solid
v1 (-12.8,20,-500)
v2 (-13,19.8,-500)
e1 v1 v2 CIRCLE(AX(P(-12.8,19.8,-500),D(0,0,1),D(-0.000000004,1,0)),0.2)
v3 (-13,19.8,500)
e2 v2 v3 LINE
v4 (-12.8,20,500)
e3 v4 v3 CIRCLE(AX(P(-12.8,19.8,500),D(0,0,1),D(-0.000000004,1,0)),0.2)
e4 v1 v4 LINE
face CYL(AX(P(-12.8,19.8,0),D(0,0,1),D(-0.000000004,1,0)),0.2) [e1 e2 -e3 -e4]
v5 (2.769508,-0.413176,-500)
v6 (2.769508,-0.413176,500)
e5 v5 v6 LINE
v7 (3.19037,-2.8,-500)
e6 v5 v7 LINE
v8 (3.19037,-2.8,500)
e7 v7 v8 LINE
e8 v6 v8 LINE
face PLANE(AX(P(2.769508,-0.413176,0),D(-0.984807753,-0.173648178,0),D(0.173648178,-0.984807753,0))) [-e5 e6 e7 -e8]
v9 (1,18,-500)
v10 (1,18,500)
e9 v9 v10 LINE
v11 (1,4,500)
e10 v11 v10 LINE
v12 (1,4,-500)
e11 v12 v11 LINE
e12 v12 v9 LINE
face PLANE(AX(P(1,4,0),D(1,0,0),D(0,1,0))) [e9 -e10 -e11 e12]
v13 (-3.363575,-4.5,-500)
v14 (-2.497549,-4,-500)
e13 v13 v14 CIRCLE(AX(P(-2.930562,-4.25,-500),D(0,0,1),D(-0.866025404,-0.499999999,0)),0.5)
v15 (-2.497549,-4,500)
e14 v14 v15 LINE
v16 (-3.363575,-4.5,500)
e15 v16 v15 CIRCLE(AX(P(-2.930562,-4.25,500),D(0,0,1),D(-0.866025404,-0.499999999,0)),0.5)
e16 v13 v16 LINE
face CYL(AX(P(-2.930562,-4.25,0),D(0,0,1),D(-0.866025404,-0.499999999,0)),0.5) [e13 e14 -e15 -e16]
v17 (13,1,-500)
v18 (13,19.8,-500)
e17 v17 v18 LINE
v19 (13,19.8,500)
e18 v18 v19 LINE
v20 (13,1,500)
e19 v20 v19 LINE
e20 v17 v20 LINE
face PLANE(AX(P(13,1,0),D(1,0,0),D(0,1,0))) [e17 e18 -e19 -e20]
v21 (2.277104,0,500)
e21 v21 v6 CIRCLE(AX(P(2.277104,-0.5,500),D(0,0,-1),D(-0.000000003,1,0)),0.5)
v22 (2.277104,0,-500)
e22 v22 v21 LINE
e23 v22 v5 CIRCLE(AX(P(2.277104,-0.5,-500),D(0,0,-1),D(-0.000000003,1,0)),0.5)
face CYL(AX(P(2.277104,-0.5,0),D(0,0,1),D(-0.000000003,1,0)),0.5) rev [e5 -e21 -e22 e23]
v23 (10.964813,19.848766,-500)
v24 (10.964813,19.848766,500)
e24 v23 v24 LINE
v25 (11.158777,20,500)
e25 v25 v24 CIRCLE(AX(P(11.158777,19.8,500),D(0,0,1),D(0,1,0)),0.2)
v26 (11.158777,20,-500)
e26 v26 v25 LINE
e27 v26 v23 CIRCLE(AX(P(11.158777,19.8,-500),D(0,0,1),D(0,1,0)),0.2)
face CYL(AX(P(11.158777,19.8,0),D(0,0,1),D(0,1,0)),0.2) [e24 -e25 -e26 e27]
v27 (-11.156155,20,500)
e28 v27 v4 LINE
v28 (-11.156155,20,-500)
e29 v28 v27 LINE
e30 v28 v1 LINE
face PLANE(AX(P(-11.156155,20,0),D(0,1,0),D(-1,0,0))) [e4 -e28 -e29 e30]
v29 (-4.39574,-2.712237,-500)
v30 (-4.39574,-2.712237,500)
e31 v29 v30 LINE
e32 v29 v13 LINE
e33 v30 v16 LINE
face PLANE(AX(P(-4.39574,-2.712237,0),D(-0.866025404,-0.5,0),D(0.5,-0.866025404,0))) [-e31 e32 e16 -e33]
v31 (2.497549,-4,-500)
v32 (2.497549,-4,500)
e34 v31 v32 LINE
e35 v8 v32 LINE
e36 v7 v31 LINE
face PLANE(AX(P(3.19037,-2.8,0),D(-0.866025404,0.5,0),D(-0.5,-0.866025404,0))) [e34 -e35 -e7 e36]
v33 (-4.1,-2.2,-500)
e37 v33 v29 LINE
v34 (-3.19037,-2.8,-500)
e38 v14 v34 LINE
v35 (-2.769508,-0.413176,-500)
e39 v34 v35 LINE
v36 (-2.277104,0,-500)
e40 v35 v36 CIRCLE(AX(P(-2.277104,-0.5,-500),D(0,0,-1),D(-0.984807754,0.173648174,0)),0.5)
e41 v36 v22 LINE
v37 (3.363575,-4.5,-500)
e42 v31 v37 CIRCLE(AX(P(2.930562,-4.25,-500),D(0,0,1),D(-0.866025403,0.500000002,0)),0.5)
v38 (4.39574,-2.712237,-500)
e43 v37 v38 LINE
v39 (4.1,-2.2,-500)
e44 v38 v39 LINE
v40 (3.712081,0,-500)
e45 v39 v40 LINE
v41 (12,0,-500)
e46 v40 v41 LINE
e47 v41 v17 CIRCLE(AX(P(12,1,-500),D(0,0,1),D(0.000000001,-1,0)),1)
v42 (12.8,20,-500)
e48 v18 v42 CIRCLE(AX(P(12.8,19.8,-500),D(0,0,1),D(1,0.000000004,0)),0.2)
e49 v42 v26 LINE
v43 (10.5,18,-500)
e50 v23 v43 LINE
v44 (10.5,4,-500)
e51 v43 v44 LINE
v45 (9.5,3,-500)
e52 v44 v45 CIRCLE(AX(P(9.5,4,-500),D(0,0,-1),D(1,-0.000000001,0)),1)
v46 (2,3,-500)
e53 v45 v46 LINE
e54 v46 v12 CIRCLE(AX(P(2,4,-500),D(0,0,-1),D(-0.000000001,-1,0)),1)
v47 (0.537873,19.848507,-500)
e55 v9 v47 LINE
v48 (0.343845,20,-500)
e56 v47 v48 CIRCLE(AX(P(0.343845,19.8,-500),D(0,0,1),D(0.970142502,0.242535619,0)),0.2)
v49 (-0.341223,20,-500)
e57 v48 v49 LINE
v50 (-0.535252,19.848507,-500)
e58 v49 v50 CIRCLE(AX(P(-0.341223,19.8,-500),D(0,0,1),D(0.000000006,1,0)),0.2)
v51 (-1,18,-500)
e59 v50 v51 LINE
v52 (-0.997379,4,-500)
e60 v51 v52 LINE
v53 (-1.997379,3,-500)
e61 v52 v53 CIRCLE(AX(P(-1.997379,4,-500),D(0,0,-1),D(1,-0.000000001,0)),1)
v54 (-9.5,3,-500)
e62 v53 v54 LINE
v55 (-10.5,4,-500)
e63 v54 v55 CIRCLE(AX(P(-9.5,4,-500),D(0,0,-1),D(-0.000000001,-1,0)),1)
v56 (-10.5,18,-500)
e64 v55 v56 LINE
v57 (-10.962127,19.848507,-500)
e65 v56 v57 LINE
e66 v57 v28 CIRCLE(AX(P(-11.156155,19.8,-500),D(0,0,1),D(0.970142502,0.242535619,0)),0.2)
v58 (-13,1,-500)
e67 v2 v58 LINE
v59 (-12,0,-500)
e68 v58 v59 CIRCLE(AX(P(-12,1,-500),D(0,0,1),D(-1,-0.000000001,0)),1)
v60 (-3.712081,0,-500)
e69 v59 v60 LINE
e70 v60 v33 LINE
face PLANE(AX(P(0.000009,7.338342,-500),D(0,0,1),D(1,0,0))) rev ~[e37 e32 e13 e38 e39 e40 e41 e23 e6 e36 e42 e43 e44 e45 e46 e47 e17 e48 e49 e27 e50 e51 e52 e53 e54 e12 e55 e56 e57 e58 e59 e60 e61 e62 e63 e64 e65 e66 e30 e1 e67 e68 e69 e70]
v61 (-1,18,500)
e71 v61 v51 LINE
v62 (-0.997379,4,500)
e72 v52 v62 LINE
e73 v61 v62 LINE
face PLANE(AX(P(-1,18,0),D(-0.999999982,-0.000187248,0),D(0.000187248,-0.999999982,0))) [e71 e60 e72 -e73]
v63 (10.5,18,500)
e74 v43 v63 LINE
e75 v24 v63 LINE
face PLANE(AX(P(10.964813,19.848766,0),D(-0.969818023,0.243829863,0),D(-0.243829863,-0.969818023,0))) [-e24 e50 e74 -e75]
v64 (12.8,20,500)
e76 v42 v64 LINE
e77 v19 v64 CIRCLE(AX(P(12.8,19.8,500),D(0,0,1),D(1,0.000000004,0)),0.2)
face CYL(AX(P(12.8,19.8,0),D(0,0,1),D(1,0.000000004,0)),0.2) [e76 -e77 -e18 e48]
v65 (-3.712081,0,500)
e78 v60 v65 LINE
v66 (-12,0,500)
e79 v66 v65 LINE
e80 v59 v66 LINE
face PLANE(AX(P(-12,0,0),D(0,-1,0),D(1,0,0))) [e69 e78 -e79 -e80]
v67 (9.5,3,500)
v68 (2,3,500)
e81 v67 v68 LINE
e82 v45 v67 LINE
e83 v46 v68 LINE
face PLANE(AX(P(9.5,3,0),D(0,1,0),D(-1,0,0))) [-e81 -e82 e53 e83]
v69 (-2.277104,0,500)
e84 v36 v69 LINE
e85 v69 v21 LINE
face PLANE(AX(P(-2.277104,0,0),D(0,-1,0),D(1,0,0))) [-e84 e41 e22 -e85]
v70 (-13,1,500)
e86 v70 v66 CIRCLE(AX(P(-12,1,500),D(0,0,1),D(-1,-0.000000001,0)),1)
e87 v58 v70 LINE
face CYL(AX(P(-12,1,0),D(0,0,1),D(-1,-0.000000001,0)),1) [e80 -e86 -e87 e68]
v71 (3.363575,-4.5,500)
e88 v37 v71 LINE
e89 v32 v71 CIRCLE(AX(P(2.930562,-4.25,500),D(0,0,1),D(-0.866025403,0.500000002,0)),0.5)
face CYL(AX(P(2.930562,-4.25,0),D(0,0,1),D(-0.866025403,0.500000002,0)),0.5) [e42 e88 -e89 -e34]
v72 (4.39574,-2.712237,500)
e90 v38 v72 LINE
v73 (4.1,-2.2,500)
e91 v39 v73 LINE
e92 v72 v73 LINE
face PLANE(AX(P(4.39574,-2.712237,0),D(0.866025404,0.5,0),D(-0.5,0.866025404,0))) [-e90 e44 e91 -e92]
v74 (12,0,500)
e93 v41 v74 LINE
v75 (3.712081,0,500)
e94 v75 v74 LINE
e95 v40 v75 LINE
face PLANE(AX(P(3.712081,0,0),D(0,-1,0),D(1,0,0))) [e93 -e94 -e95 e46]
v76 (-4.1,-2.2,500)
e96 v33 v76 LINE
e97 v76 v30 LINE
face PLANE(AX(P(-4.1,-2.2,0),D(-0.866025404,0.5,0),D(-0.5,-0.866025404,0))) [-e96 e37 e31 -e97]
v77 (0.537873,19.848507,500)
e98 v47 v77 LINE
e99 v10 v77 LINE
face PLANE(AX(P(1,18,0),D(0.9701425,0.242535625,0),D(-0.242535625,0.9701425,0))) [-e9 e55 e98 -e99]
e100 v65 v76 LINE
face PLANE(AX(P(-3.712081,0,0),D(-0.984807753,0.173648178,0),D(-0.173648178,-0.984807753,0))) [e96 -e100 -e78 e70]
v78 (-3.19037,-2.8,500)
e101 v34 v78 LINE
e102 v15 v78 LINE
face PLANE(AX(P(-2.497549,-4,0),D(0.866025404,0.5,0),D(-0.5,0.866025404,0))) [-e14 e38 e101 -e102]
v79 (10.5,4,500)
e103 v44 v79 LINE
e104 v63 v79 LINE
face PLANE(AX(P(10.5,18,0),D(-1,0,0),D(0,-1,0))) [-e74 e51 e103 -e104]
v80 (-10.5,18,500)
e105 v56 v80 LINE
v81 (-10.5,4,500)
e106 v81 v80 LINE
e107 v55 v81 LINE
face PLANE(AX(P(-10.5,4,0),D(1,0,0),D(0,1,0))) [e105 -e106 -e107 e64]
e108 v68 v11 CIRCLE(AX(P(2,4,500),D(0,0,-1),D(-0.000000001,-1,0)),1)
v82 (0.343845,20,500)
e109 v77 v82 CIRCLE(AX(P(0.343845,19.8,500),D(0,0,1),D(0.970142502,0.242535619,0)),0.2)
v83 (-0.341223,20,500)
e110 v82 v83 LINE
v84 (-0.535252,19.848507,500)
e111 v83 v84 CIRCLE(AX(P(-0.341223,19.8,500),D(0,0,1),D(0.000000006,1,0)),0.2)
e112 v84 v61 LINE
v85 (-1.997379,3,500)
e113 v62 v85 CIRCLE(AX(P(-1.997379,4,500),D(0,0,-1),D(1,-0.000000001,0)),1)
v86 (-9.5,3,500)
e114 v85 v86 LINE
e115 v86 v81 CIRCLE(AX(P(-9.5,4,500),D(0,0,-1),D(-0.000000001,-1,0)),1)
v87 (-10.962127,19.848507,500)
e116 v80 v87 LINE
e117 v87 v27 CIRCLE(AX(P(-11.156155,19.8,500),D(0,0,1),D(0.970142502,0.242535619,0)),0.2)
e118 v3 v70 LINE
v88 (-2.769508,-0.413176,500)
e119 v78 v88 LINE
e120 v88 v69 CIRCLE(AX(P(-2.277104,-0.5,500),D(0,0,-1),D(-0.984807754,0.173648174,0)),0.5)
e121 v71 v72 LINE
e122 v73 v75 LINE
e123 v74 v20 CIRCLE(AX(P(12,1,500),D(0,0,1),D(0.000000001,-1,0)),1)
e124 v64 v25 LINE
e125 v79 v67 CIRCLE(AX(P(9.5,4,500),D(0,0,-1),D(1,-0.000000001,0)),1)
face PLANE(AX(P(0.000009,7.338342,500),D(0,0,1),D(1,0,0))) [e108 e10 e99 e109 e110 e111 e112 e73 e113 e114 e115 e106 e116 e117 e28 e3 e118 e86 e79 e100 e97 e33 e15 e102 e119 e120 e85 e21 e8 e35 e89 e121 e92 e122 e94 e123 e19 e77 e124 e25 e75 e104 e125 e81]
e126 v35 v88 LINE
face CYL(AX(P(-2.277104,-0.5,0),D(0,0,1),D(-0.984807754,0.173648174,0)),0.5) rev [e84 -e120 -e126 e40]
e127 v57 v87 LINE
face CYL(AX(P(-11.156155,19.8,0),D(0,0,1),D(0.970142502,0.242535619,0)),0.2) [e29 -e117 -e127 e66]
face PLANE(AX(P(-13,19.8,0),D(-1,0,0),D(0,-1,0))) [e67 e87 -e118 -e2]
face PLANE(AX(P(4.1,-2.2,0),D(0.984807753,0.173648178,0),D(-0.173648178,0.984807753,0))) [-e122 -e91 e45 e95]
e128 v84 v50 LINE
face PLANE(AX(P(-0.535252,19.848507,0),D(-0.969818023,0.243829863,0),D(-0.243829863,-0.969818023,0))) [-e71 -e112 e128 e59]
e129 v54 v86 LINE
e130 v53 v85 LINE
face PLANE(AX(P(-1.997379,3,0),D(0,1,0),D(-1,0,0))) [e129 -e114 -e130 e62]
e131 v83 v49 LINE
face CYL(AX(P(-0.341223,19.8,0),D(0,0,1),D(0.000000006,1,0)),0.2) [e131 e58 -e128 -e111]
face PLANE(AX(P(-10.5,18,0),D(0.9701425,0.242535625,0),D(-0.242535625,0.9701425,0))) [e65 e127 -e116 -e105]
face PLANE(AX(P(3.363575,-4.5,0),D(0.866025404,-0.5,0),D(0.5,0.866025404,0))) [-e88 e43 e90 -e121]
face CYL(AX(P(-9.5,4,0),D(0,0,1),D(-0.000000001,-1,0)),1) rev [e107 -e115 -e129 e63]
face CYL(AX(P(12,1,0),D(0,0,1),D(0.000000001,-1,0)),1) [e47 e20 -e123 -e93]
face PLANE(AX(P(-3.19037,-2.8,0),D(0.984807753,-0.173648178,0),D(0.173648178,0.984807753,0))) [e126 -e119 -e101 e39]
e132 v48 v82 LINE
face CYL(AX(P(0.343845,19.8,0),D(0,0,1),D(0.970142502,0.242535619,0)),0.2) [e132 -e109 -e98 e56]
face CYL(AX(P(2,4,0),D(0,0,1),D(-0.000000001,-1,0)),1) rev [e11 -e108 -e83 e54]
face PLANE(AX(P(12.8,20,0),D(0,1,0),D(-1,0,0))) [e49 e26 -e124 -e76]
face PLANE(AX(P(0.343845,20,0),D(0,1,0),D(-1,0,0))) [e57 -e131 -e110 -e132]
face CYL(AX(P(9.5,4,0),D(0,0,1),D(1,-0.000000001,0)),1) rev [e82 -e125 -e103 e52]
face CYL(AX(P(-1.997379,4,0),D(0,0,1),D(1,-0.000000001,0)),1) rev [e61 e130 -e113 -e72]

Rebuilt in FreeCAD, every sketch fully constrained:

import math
import FreeCAD as App
import Part
import Sketcher
Q = App.Units.Quantity

doc = App.newDocument("Part")
params = doc.addObject("Spreadsheet::Sheet", "Params")
for row, (alias, value) in enumerate([
    ("sketch1_radius", "1 mm"),
    ("sketch1_radius2", "0.2 mm"),
    ("sketch1_radius3", "0.5 mm"),
    ("sketch1_height", "14 mm"),
    ("sketch1_width", "7.5 mm"),
    ("pad1_length", "1000 mm"),
], start=1):
    params.set(f"A{row}", alias)
    params.set(f"B{row}", "=" + value)
    params.setAlias(f"B{row}", alias)

body = doc.addObject("PartDesign::Body", "Body")

# Sketch on XY plane
sketch1 = body.newObject("Sketcher::SketchObject", "Sketch")
sketch1.AttachmentSupport = (doc.getObject("XY_Plane"), [""])
sketch1.MapMode = "FlatFace"
sketch1.addGeometry([
    Part.LineSegment(App.Vector(-1, 18, 0), App.Vector(-1, 4, 0)),  # 0
    Part.ArcOfCircle(Part.Circle(App.Vector(-2, 4, 0), App.Vector(0, 0, 1), 1), math.radians(-90), math.radians(0)),  # 1
    Part.LineSegment(App.Vector(-2, 3, 0), App.Vector(-9.5, 3, 0)),  # 2
    Part.ArcOfCircle(Part.Circle(App.Vector(-9.5, 4, 0), App.Vector(0, 0, 1), 1), math.radians(-180), math.radians(-90)),  # 3
    Part.LineSegment(App.Vector(-10.5, 4, 0), App.Vector(-10.5, 18, 0)),  # 4
    Part.LineSegment(App.Vector(-10.5, 18, 0), App.Vector(-10.96, 19.85, 0)),  # 5
    Part.ArcOfCircle(Part.Circle(App.Vector(-11.16, 19.8, 0), App.Vector(0, 0, 1), 0.2), math.radians(14), math.radians(90)),  # 6
    Part.LineSegment(App.Vector(-11.16, 20, 0), App.Vector(-12.8, 20, 0)),  # 7
    Part.ArcOfCircle(Part.Circle(App.Vector(-12.8, 19.8, 0), App.Vector(0, 0, 1), 0.2), math.radians(90), math.radians(180)),  # 8
    Part.LineSegment(App.Vector(-13, 19.8, 0), App.Vector(-13, 1, 0)),  # 9
    Part.ArcOfCircle(Part.Circle(App.Vector(-12, 1, 0), App.Vector(0, 0, 1), 1), math.radians(-180), math.radians(-90)),  # 10
    Part.LineSegment(App.Vector(-12, 0, 0), App.Vector(-3.71, 0, 0)),  # 11
    Part.LineSegment(App.Vector(-3.71, 0, 0), App.Vector(-4.1, -2.2, 0)),  # 12
    Part.LineSegment(App.Vector(-4.1, -2.2, 0), App.Vector(-4.4, -2.71, 0)),  # 13
    Part.LineSegment(App.Vector(-4.4, -2.71, 0), App.Vector(-3.36, -4.5, 0)),  # 14
    Part.ArcOfCircle(Part.Circle(App.Vector(-2.93, -4.25, 0), App.Vector(0, 0, 1), 0.5), math.radians(-150), math.radians(30)),  # 15
    Part.LineSegment(App.Vector(-2.5, -4, 0), App.Vector(-3.19, -2.8, 0)),  # 16
    Part.LineSegment(App.Vector(-3.19, -2.8, 0), App.Vector(-2.77, -0.41, 0)),  # 17
    Part.ArcOfCircle(Part.Circle(App.Vector(-2.28, -0.5, 0), App.Vector(0, 0, 1), 0.5), math.radians(90), math.radians(170)),  # 18
    Part.LineSegment(App.Vector(-2.28, 0, 0), App.Vector(2.28, 0, 0)),  # 19
    Part.ArcOfCircle(Part.Circle(App.Vector(2.28, -0.5, 0), App.Vector(0, 0, 1), 0.5), math.radians(10), math.radians(90)),  # 20
    Part.LineSegment(App.Vector(2.77, -0.41, 0), App.Vector(3.19, -2.8, 0)),  # 21
    Part.LineSegment(App.Vector(3.19, -2.8, 0), App.Vector(2.5, -4, 0)),  # 22
    Part.ArcOfCircle(Part.Circle(App.Vector(2.93, -4.25, 0), App.Vector(0, 0, 1), 0.5), math.radians(150), math.radians(330)),  # 23
    Part.LineSegment(App.Vector(3.36, -4.5, 0), App.Vector(4.4, -2.71, 0)),  # 24
    Part.LineSegment(App.Vector(4.4, -2.71, 0), App.Vector(4.1, -2.2, 0)),  # 25
    Part.LineSegment(App.Vector(4.1, -2.2, 0), App.Vector(3.71, 0, 0)),  # 26
    Part.LineSegment(App.Vector(3.71, 0, 0), App.Vector(12, 0, 0)),  # 27
    Part.ArcOfCircle(Part.Circle(App.Vector(12, 1, 0), App.Vector(0, 0, 1), 1), math.radians(-90), math.radians(0)),  # 28
    Part.LineSegment(App.Vector(13, 1, 0), App.Vector(13, 19.8, 0)),  # 29
    Part.ArcOfCircle(Part.Circle(App.Vector(12.8, 19.8, 0), App.Vector(0, 0, 1), 0.2), math.radians(0), math.radians(90)),  # 30
    Part.LineSegment(App.Vector(12.8, 20, 0), App.Vector(11.16, 20, 0)),  # 31
    Part.ArcOfCircle(Part.Circle(App.Vector(11.16, 19.8, 0), App.Vector(0, 0, 1), 0.2), math.radians(90), math.radians(166)),  # 32
    Part.LineSegment(App.Vector(10.96, 19.85, 0), App.Vector(10.5, 18, 0)),  # 33
    Part.LineSegment(App.Vector(10.5, 18, 0), App.Vector(10.5, 4, 0)),  # 34
    Part.ArcOfCircle(Part.Circle(App.Vector(9.5, 4, 0), App.Vector(0, 0, 1), 1), math.radians(-90), math.radians(0)),  # 35
    Part.LineSegment(App.Vector(9.5, 3, 0), App.Vector(2, 3, 0)),  # 36
    Part.ArcOfCircle(Part.Circle(App.Vector(2, 4, 0), App.Vector(0, 0, 1), 1), math.radians(-180), math.radians(-90)),  # 37
    Part.LineSegment(App.Vector(1, 4, 0), App.Vector(1, 18, 0)),  # 38
    Part.LineSegment(App.Vector(1, 18, 0), App.Vector(0.54, 19.85, 0)),  # 39
    Part.ArcOfCircle(Part.Circle(App.Vector(0.34, 19.8, 0), App.Vector(0, 0, 1), 0.2), math.radians(14), math.radians(90)),  # 40
    Part.LineSegment(App.Vector(0.34, 20, 0), App.Vector(-0.34, 20, 0)),  # 41
    Part.ArcOfCircle(Part.Circle(App.Vector(-0.34, 19.8, 0), App.Vector(0, 0, 1), 0.2), math.radians(90), math.radians(166)),  # 42
    Part.LineSegment(App.Vector(-0.54, 19.85, 0), App.Vector(-1, 18, 0)),  # 43
], False)
sketch1.addConstraint([
    Sketcher.Constraint("Coincident", 0, 2, 1, 2),
    Sketcher.Constraint("Tangent", 1, 1, 2, 1),
    Sketcher.Constraint("Tangent", 2, 2, 3, 2),
    Sketcher.Constraint("Tangent", 3, 1, 4, 1),
    Sketcher.Constraint("Coincident", 4, 2, 5, 1),
    Sketcher.Constraint("Tangent", 5, 2, 6, 1),
    Sketcher.Constraint("Tangent", 6, 2, 7, 1),
    Sketcher.Constraint("Tangent", 7, 2, 8, 1),
    Sketcher.Constraint("Tangent", 8, 2, 9, 1),
    Sketcher.Constraint("Tangent", 9, 2, 10, 1),
    Sketcher.Constraint("Tangent", 10, 2, 11, 1),
    Sketcher.Constraint("Coincident", 11, 2, 12, 1),
    Sketcher.Constraint("Coincident", 12, 2, 13, 1),
    Sketcher.Constraint("Coincident", 13, 2, 14, 1),
    Sketcher.Constraint("Tangent", 14, 2, 15, 1),
    Sketcher.Constraint("Tangent", 15, 2, 16, 1),
    Sketcher.Constraint("Coincident", 16, 2, 17, 1),
    Sketcher.Constraint("Tangent", 17, 2, 18, 2),
    Sketcher.Constraint("Tangent", 18, 1, 19, 1),
    Sketcher.Constraint("Tangent", 19, 2, 20, 2),
    Sketcher.Constraint("Tangent", 20, 1, 21, 1),
    Sketcher.Constraint("Coincident", 21, 2, 22, 1),
    Sketcher.Constraint("Tangent", 22, 2, 23, 1),
    Sketcher.Constraint("Tangent", 23, 2, 24, 1),
    Sketcher.Constraint("Coincident", 24, 2, 25, 1),
    Sketcher.Constraint("Coincident", 25, 2, 26, 1),
    Sketcher.Constraint("Coincident", 26, 2, 27, 1),
    Sketcher.Constraint("Tangent", 27, 2, 28, 1),
    Sketcher.Constraint("Tangent", 28, 2, 29, 1),
    Sketcher.Constraint("Tangent", 29, 2, 30, 1),
    Sketcher.Constraint("Tangent", 30, 2, 31, 1),
    Sketcher.Constraint("Tangent", 31, 2, 32, 1),
    Sketcher.Constraint("Tangent", 32, 2, 33, 1),
    Sketcher.Constraint("Coincident", 33, 2, 34, 1),
    Sketcher.Constraint("Tangent", 34, 2, 35, 2),
    Sketcher.Constraint("Tangent", 35, 1, 36, 1),
    Sketcher.Constraint("Tangent", 36, 2, 37, 2),
    Sketcher.Constraint("Tangent", 37, 1, 38, 1),
    Sketcher.Constraint("Coincident", 38, 2, 39, 1),
    Sketcher.Constraint("Tangent", 39, 2, 40, 1),
    Sketcher.Constraint("Tangent", 40, 2, 41, 1),
    Sketcher.Constraint("Tangent", 41, 2, 42, 1),
    Sketcher.Constraint("Coincident", 42, 2, 43, 1),
    Sketcher.Constraint("Coincident", 43, 2, 0, 1),
    Sketcher.Constraint("Horizontal", 2),
    Sketcher.Constraint("Vertical", 4),
    Sketcher.Constraint("Horizontal", 7),
    Sketcher.Constraint("Vertical", 9),
    Sketcher.Constraint("Horizontal", 11),
    Sketcher.Constraint("Horizontal", 19),
    Sketcher.Constraint("Horizontal", 27),
    Sketcher.Constraint("Vertical", 29),
    Sketcher.Constraint("Horizontal", 31),
    Sketcher.Constraint("Vertical", 34),
    Sketcher.Constraint("Horizontal", 36),
    Sketcher.Constraint("Vertical", 38),
    Sketcher.Constraint("Horizontal", 41),
    Sketcher.Constraint("Equal", 1, 3),
    Sketcher.Constraint("Equal", 6, 8),
    Sketcher.Constraint("Equal", 3, 10),
    Sketcher.Constraint("Equal", 15, 18),
    Sketcher.Constraint("Equal", 18, 20),
    Sketcher.Constraint("Equal", 20, 23),
    Sketcher.Constraint("Equal", 10, 28),
    Sketcher.Constraint("Equal", 8, 30),
    Sketcher.Constraint("Equal", 30, 32),
    Sketcher.Constraint("Equal", 28, 35),
    Sketcher.Constraint("Equal", 35, 37),
    Sketcher.Constraint("Equal", 32, 40),
    Sketcher.Constraint("Equal", 40, 42),
    Sketcher.Constraint("Symmetric", 18, 1, 19, 2, -1, 1),
    Sketcher.Constraint("Symmetric", 11, 2, 26, 2, -1, 1),
    Sketcher.Constraint("Symmetric", 15, 3, 23, 3, -2),
    Sketcher.Constraint("Symmetric", 10, 3, 28, 3, -2),
    Sketcher.Constraint("Symmetric", 3, 3, 35, 3, -2),
    Sketcher.Constraint("Symmetric", 16, 2, 21, 2, -2),
    Sketcher.Constraint("Symmetric", 13, 2, 24, 2, -2),
    Sketcher.Constraint("Symmetric", 12, 2, 25, 2, -2),
    Sketcher.Constraint("Symmetric", 38, 2, 43, 2, -2),
    Sketcher.Constraint("Parallel", 14, 16),
    Sketcher.Constraint("Parallel", 12, 17),
    Sketcher.Constraint("Parallel", 13, 22),
    Sketcher.Constraint("Parallel", 5, 39),
    Sketcher.Constraint("Parallel", 33, 43),
    Sketcher.Constraint("Horizontal", 8, 3, 30, 3),
    Sketcher.Constraint("Horizontal", 32, 3, 40, 3),
    Sketcher.Constraint("Horizontal", 37, 3, 0, 2),
    Sketcher.Constraint("Horizontal", 4, 2, 33, 2),
    Sketcher.Constraint("Horizontal", 33, 2, 38, 2),
    Sketcher.Constraint("Horizontal", 39, 2, 42, 2),
    Sketcher.Constraint("Radius", 1, 1.0),
    Sketcher.Constraint("Radius", 6, 0.2),
    Sketcher.Constraint("Radius", 15, 0.5),
    Sketcher.Constraint("DistanceY", 4, 1, 4, 2, 14.0),
    Sketcher.Constraint("Angle", 12, Q("-100 deg")),
    Sketcher.Constraint("Angle", 13, Q("-120 deg")),
    Sketcher.Constraint("DistanceX", 36, 2, 36, 1, 7.5),
    Sketcher.Constraint("DistanceY", 9, 2, 9, 1, 18.8),
    Sketcher.Constraint("DistanceY", -1, 1, 1, 3, 4.0),
    Sketcher.Constraint("DistanceX", 10, 3, -1, 1, 12.0),
    Sketcher.Constraint("DistanceX", -1, 1, 37, 3, 2.0),
    Sketcher.Constraint("DistanceY", 15, 2, -1, 1, 4.0),
    Sketcher.Constraint("DistanceX", 12, 2, -1, 1, 4.1),
    Sketcher.Constraint("DistanceY", 12, 2, -1, 1, 2.2),
    Sketcher.Constraint("DistanceY", 16, 2, -1, 1, 2.8),
    Sketcher.Constraint("Distance", 33, 1.906302),
    Sketcher.Constraint("DistanceX", 2, 2, 2, 1, 7.502621),
    Sketcher.Constraint("DistanceX", 19, 1, 19, 2, 4.554208),
    Sketcher.Constraint("DistanceX", 7, 2, 7, 1, 1.643845),
])
sketch1.setExpression("Constraints[90]", "Params.sketch1_radius")
sketch1.setExpression("Constraints[91]", "Params.sketch1_radius2")
sketch1.setExpression("Constraints[92]", "Params.sketch1_radius3")
sketch1.setExpression("Constraints[93]", "Params.sketch1_height")
sketch1.setExpression("Constraints[96]", "Params.sketch1_width")
pad1 = body.newObject("PartDesign::Pad", "Pad")
pad1.Profile = sketch1
pad1.setExpression("Length", "Params.pad1_length")
pad1.Midplane = True

doc.recompute()
